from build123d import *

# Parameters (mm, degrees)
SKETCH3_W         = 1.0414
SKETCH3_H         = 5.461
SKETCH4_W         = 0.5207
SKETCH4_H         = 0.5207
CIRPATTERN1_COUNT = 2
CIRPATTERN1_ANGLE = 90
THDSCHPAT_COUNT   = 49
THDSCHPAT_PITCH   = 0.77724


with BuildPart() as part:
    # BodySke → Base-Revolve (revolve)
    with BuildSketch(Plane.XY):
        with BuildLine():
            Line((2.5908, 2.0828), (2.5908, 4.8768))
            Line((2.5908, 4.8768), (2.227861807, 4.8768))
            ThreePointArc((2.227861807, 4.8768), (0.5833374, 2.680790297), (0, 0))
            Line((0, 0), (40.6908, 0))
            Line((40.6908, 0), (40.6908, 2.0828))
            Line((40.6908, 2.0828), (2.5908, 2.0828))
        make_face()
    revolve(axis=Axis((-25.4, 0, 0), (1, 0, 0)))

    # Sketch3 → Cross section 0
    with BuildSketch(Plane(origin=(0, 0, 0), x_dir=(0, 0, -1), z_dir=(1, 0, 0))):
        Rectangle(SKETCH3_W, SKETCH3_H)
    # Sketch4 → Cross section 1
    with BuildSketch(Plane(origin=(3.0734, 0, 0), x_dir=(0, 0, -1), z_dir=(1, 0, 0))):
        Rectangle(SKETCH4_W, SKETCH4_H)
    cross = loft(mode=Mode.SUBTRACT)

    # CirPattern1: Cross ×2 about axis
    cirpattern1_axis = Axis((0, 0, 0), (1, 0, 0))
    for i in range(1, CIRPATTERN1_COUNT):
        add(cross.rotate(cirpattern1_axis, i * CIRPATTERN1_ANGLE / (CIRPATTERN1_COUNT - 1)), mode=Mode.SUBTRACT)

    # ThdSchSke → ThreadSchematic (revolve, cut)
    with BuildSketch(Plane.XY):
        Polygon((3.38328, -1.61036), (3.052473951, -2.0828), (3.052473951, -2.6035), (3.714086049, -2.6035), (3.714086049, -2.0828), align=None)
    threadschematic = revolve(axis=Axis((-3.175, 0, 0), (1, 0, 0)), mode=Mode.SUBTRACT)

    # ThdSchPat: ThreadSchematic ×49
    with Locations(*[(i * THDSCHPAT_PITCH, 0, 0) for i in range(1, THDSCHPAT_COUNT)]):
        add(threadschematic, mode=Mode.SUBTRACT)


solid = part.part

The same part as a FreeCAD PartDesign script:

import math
import FreeCAD as App
import Part
import Sketcher

V = App.Vector
Q = App.Units.Quantity


def add_polygon(sketch, points):
    """Adds a closed chain of lines whose ends are joined by coincident constraints."""
    first, n = sketch.GeometryCount, len(points)
    for a, b in zip(points, points[1:] + points[:1]):
        sketch.addGeometry(Part.LineSegment(App.Vector(*a, 0), App.Vector(*b, 0)), False)
    for i in range(n):
        sketch.addConstraint(Sketcher.Constraint("Coincident", first + i, 2, first + (i + 1) % n, 1))

doc = App.newDocument("Part")
params = doc.addObject("Spreadsheet::Sheet", "Params")
for row, (alias, value) in enumerate([
    ("sketch1_width", "1.5 in"),
    ("sketch1_radius", "0.254 in"),
    ("sketch1_height", "0.11 in"),
    ("sketch1_width2", "1.602 in"),
    ("sketch1_height2", "0.082 in"),
    ("revolution_angle", "360 deg"),
    ("sketch2_width", "0.215 in"),
    ("sketch2_height", "0.041 in"),
    ("groove_angle", "360 deg"),
    ("linearpattern_pitch", "0.0306 in"),
], start=1):
    params.set(f"A{row}", alias)
    params.set(f"B{row}", "=" + value)
    params.setAlias(f"B{row}", alias)

body = doc.addObject("PartDesign::Body", "Body")

# Sketch on XY plane
sketch1 = body.newObject("Sketcher::SketchObject", "Sketch")
sketch1.AttachmentSupport = (doc.getObject("XY_Plane"), [""])
sketch1.MapMode = "FlatFace"
sketch1.addGeometry(Part.LineSegment(V(2.59, 2.08, 0), V(2.59, 4.88, 0)), False)
sketch1.addGeometry(Part.LineSegment(V(2.59, 4.88, 0), V(2.23, 4.88, 0)), False)
sketch1.addGeometry(Part.ArcOfCircle(Part.Circle(V(6.45, 0, 0), V(0, 0, 1), 6.45), math.radians(131), math.radians(180)), False)
sketch1.addGeometry(Part.LineSegment(V(0, 0, 0), V(40.69, 0, 0)), False)
sketch1.addGeometry(Part.LineSegment(V(40.69, 0, 0), V(40.69, 2.08, 0)), False)
sketch1.addGeometry(Part.LineSegment(V(40.69, 2.08, 0), V(2.59, 2.08, 0)), False)
sketch1.addConstraint(Sketcher.Constraint("Coincident", 0, 2, 1, 1))
sketch1.addConstraint(Sketcher.Constraint("Coincident", 1, 2, 2, 1))
sketch1.addConstraint(Sketcher.Constraint("Coincident", 2, 2, 3, 1))
sketch1.addConstraint(Sketcher.Constraint("Coincident", 3, 2, 4, 1))
sketch1.addConstraint(Sketcher.Constraint("Coincident", 4, 2, 5, 1))
sketch1.addConstraint(Sketcher.Constraint("Coincident", 5, 2, 0, 1))
sketch1.addConstraint(Sketcher.Constraint("Vertical", 0))
sketch1.addConstraint(Sketcher.Constraint("Horizontal", 1))
sketch1.addConstraint(Sketcher.Constraint("Horizontal", 3))
sketch1.addConstraint(Sketcher.Constraint("Vertical", 4))
sketch1.addConstraint(Sketcher.Constraint("Horizontal", 5))
sketch1.addConstraint(Sketcher.Constraint("Coincident", 2, 2, -1, 1))
sketch1.addConstraint(Sketcher.Constraint("PointOnObject", 2, 3, -1))
sketch1.addConstraint(Sketcher.Constraint("DistanceX", 5, 2, 5, 1, Q("1.5 in")))
sketch1.addConstraint(Sketcher.Constraint("Radius", 2, Q("0.254 in")))
sketch1.addConstraint(Sketcher.Constraint("DistanceY", 0, 1, 0, 2, Q("0.11 in")))
sketch1.addConstraint(Sketcher.Constraint("DistanceX", 3, 1, 3, 2, Q("1.602 in")))
sketch1.addConstraint(Sketcher.Constraint("DistanceY", 4, 1, 4, 2, Q("0.082 in")))
sketch1.setExpression("Constraints[13]", "Params.sketch1_width")
sketch1.setExpression("Constraints[14]", "Params.sketch1_radius")
sketch1.setExpression("Constraints[15]", "Params.sketch1_height")
sketch1.setExpression("Constraints[16]", "Params.sketch1_width2")
sketch1.setExpression("Constraints[17]", "Params.sketch1_height2")
revolution = body.newObject("PartDesign::Revolution", "Revolution")
revolution.Profile = sketch1
revolution.ReferenceAxis = (sketch1, ["H_Axis"])
revolution.setExpression("Angle", "Params.revolution_angle")

# Sketch on YZ plane
sketch2 = body.newObject("Sketcher::SketchObject", "Sketch001")
sketch2.AttachmentSupport = (doc.getObject("YZ_Plane"), [""])
sketch2.MapMode = "FlatFace"
add_polygon(sketch2, [(2.7, 0.5), (-2.7, 0.5), (-2.7, -0.5), (2.7, -0.5)])  # lines 0-3
sketch2.addConstraint(Sketcher.Constraint("Horizontal", 0))
sketch2.addConstraint(Sketcher.Constraint("Vertical", 1))
sketch2.addConstraint(Sketcher.Constraint("Horizontal", 2))
sketch2.addConstraint(Sketcher.Constraint("Vertical", 3))
sketch2.addConstraint(Sketcher.Constraint("Symmetric", 0, 2, 2, 2, -1, 1))
sketch2.addConstraint(Sketcher.Constraint("DistanceX", 0, 2, 0, 1, Q("0.215 in")))
sketch2.addConstraint(Sketcher.Constraint("DistanceY", 1, 2, 1, 1, Q("0.041 in")))
sketch2.setExpression("Constraints[9]", "Params.sketch2_width")
sketch2.setExpression("Constraints[10]", "Params.sketch2_height")

# Sketch on YZ plane
sketch3 = body.newObject("Sketcher::SketchObject", "Sketch002")
sketch3.AttachmentSupport = (doc.getObject("YZ_Plane"), [""])
sketch3.MapMode = "FlatFace"
sketch3.AttachmentOffset = App.Placement(V(0, 0, 0.121 * 25.4), App.Rotation())
add_polygon(sketch3, [(0.3, 0.3), (-0.3, 0.3), (-0.3, -0.3), (0.3, -0.3)])  # lines 0-3
sketch3.addConstraint(Sketcher.Constraint("Horizontal", 0))
sketch3.addConstraint(Sketcher.Constraint("Vertical", 1))
sketch3.addConstraint(Sketcher.Constraint("Horizontal", 2))
sketch3.addConstraint(Sketcher.Constraint("Vertical", 3))
sketch3.addConstraint(Sketcher.Constraint("Symmetric", 0, 2, 2, 2, -1, 1))
sketch3.addConstraint(Sketcher.Constraint("Equal", 2, 1))
sketch3.addConstraint(Sketcher.Constraint("DistanceX", 0, 2, 0, 1, Q("0.0205 in")))

subtractiveloft = body.newObject("PartDesign::SubtractiveLoft", "SubtractiveLoft")
subtractiveloft.Profile = sketch2
subtractiveloft.Sections = [sketch3]
doc.recompute()

polarpattern = body.newObject("PartDesign::PolarPattern", "PolarPattern")
polarpattern.Originals = [subtractiveloft]
polarpattern.Axis = (doc.getObject("X_Axis"), [""])
polarpattern.Angle = 90
polarpattern.Occurrences = 2
body.Tip = polarpattern

# Sketch on XY plane
sketch4 = body.newObject("Sketcher::SketchObject", "Sketch003")
sketch4.AttachmentSupport = (doc.getObject("XY_Plane"), [""])
sketch4.MapMode = "FlatFace"
add_polygon(sketch4, [(3.4, -1.6), (3.1, -2.1), (3.1, -2.6), (3.7, -2.6), (3.7, -2.1)])  # lines 0-4
sketch4.addConstraint(Sketcher.Constraint("Vertical", 1))
sketch4.addConstraint(Sketcher.Constraint("Horizontal", 2))
sketch4.addConstraint(Sketcher.Constraint("Vertical", 3))
sketch4.addConstraint(Sketcher.Constraint("Horizontal", 0, 2, 3, 2))
sketch4.addConstraint(Sketcher.Constraint("Equal", 0, 4))
sketch4.addConstraint(Sketcher.Constraint("Angle", 0, Q("-125 deg")))
sketch4.addConstraint(Sketcher.Constraint("DistanceY", 1, 2, 1, 1, Q("0.0205 in")))
sketch4.addConstraint(Sketcher.Constraint("DistanceY", 0, 2, -1, 1, Q("0.082 in")))
sketch4.addConstraint(Sketcher.Constraint("DistanceX", -1, 1, 4, 2, Q("0.1332 in")))
sketch4.addConstraint(Sketcher.Constraint("DistanceY", 4, 2, -1, 1, Q("0.0634 in")))
groove = body.newObject("PartDesign::Groove", "Groove")
groove.Profile = sketch4
groove.ReferenceAxis = (sketch4, ["H_Axis"])
groove.setExpression("Angle", "Params.groove_angle")
doc.recompute()

linearpattern = body.newObject("PartDesign::LinearPattern", "LinearPattern")
linearpattern.Originals = [groove]
linearpattern.Direction = (doc.getObject("X_Axis"), [""])
linearpattern.Mode = "offset"
linearpattern.setExpression("Offset", "Params.linearpattern_pitch")
linearpattern.Occurrences = 49
body.Tip = linearpattern

doc.recompute()
